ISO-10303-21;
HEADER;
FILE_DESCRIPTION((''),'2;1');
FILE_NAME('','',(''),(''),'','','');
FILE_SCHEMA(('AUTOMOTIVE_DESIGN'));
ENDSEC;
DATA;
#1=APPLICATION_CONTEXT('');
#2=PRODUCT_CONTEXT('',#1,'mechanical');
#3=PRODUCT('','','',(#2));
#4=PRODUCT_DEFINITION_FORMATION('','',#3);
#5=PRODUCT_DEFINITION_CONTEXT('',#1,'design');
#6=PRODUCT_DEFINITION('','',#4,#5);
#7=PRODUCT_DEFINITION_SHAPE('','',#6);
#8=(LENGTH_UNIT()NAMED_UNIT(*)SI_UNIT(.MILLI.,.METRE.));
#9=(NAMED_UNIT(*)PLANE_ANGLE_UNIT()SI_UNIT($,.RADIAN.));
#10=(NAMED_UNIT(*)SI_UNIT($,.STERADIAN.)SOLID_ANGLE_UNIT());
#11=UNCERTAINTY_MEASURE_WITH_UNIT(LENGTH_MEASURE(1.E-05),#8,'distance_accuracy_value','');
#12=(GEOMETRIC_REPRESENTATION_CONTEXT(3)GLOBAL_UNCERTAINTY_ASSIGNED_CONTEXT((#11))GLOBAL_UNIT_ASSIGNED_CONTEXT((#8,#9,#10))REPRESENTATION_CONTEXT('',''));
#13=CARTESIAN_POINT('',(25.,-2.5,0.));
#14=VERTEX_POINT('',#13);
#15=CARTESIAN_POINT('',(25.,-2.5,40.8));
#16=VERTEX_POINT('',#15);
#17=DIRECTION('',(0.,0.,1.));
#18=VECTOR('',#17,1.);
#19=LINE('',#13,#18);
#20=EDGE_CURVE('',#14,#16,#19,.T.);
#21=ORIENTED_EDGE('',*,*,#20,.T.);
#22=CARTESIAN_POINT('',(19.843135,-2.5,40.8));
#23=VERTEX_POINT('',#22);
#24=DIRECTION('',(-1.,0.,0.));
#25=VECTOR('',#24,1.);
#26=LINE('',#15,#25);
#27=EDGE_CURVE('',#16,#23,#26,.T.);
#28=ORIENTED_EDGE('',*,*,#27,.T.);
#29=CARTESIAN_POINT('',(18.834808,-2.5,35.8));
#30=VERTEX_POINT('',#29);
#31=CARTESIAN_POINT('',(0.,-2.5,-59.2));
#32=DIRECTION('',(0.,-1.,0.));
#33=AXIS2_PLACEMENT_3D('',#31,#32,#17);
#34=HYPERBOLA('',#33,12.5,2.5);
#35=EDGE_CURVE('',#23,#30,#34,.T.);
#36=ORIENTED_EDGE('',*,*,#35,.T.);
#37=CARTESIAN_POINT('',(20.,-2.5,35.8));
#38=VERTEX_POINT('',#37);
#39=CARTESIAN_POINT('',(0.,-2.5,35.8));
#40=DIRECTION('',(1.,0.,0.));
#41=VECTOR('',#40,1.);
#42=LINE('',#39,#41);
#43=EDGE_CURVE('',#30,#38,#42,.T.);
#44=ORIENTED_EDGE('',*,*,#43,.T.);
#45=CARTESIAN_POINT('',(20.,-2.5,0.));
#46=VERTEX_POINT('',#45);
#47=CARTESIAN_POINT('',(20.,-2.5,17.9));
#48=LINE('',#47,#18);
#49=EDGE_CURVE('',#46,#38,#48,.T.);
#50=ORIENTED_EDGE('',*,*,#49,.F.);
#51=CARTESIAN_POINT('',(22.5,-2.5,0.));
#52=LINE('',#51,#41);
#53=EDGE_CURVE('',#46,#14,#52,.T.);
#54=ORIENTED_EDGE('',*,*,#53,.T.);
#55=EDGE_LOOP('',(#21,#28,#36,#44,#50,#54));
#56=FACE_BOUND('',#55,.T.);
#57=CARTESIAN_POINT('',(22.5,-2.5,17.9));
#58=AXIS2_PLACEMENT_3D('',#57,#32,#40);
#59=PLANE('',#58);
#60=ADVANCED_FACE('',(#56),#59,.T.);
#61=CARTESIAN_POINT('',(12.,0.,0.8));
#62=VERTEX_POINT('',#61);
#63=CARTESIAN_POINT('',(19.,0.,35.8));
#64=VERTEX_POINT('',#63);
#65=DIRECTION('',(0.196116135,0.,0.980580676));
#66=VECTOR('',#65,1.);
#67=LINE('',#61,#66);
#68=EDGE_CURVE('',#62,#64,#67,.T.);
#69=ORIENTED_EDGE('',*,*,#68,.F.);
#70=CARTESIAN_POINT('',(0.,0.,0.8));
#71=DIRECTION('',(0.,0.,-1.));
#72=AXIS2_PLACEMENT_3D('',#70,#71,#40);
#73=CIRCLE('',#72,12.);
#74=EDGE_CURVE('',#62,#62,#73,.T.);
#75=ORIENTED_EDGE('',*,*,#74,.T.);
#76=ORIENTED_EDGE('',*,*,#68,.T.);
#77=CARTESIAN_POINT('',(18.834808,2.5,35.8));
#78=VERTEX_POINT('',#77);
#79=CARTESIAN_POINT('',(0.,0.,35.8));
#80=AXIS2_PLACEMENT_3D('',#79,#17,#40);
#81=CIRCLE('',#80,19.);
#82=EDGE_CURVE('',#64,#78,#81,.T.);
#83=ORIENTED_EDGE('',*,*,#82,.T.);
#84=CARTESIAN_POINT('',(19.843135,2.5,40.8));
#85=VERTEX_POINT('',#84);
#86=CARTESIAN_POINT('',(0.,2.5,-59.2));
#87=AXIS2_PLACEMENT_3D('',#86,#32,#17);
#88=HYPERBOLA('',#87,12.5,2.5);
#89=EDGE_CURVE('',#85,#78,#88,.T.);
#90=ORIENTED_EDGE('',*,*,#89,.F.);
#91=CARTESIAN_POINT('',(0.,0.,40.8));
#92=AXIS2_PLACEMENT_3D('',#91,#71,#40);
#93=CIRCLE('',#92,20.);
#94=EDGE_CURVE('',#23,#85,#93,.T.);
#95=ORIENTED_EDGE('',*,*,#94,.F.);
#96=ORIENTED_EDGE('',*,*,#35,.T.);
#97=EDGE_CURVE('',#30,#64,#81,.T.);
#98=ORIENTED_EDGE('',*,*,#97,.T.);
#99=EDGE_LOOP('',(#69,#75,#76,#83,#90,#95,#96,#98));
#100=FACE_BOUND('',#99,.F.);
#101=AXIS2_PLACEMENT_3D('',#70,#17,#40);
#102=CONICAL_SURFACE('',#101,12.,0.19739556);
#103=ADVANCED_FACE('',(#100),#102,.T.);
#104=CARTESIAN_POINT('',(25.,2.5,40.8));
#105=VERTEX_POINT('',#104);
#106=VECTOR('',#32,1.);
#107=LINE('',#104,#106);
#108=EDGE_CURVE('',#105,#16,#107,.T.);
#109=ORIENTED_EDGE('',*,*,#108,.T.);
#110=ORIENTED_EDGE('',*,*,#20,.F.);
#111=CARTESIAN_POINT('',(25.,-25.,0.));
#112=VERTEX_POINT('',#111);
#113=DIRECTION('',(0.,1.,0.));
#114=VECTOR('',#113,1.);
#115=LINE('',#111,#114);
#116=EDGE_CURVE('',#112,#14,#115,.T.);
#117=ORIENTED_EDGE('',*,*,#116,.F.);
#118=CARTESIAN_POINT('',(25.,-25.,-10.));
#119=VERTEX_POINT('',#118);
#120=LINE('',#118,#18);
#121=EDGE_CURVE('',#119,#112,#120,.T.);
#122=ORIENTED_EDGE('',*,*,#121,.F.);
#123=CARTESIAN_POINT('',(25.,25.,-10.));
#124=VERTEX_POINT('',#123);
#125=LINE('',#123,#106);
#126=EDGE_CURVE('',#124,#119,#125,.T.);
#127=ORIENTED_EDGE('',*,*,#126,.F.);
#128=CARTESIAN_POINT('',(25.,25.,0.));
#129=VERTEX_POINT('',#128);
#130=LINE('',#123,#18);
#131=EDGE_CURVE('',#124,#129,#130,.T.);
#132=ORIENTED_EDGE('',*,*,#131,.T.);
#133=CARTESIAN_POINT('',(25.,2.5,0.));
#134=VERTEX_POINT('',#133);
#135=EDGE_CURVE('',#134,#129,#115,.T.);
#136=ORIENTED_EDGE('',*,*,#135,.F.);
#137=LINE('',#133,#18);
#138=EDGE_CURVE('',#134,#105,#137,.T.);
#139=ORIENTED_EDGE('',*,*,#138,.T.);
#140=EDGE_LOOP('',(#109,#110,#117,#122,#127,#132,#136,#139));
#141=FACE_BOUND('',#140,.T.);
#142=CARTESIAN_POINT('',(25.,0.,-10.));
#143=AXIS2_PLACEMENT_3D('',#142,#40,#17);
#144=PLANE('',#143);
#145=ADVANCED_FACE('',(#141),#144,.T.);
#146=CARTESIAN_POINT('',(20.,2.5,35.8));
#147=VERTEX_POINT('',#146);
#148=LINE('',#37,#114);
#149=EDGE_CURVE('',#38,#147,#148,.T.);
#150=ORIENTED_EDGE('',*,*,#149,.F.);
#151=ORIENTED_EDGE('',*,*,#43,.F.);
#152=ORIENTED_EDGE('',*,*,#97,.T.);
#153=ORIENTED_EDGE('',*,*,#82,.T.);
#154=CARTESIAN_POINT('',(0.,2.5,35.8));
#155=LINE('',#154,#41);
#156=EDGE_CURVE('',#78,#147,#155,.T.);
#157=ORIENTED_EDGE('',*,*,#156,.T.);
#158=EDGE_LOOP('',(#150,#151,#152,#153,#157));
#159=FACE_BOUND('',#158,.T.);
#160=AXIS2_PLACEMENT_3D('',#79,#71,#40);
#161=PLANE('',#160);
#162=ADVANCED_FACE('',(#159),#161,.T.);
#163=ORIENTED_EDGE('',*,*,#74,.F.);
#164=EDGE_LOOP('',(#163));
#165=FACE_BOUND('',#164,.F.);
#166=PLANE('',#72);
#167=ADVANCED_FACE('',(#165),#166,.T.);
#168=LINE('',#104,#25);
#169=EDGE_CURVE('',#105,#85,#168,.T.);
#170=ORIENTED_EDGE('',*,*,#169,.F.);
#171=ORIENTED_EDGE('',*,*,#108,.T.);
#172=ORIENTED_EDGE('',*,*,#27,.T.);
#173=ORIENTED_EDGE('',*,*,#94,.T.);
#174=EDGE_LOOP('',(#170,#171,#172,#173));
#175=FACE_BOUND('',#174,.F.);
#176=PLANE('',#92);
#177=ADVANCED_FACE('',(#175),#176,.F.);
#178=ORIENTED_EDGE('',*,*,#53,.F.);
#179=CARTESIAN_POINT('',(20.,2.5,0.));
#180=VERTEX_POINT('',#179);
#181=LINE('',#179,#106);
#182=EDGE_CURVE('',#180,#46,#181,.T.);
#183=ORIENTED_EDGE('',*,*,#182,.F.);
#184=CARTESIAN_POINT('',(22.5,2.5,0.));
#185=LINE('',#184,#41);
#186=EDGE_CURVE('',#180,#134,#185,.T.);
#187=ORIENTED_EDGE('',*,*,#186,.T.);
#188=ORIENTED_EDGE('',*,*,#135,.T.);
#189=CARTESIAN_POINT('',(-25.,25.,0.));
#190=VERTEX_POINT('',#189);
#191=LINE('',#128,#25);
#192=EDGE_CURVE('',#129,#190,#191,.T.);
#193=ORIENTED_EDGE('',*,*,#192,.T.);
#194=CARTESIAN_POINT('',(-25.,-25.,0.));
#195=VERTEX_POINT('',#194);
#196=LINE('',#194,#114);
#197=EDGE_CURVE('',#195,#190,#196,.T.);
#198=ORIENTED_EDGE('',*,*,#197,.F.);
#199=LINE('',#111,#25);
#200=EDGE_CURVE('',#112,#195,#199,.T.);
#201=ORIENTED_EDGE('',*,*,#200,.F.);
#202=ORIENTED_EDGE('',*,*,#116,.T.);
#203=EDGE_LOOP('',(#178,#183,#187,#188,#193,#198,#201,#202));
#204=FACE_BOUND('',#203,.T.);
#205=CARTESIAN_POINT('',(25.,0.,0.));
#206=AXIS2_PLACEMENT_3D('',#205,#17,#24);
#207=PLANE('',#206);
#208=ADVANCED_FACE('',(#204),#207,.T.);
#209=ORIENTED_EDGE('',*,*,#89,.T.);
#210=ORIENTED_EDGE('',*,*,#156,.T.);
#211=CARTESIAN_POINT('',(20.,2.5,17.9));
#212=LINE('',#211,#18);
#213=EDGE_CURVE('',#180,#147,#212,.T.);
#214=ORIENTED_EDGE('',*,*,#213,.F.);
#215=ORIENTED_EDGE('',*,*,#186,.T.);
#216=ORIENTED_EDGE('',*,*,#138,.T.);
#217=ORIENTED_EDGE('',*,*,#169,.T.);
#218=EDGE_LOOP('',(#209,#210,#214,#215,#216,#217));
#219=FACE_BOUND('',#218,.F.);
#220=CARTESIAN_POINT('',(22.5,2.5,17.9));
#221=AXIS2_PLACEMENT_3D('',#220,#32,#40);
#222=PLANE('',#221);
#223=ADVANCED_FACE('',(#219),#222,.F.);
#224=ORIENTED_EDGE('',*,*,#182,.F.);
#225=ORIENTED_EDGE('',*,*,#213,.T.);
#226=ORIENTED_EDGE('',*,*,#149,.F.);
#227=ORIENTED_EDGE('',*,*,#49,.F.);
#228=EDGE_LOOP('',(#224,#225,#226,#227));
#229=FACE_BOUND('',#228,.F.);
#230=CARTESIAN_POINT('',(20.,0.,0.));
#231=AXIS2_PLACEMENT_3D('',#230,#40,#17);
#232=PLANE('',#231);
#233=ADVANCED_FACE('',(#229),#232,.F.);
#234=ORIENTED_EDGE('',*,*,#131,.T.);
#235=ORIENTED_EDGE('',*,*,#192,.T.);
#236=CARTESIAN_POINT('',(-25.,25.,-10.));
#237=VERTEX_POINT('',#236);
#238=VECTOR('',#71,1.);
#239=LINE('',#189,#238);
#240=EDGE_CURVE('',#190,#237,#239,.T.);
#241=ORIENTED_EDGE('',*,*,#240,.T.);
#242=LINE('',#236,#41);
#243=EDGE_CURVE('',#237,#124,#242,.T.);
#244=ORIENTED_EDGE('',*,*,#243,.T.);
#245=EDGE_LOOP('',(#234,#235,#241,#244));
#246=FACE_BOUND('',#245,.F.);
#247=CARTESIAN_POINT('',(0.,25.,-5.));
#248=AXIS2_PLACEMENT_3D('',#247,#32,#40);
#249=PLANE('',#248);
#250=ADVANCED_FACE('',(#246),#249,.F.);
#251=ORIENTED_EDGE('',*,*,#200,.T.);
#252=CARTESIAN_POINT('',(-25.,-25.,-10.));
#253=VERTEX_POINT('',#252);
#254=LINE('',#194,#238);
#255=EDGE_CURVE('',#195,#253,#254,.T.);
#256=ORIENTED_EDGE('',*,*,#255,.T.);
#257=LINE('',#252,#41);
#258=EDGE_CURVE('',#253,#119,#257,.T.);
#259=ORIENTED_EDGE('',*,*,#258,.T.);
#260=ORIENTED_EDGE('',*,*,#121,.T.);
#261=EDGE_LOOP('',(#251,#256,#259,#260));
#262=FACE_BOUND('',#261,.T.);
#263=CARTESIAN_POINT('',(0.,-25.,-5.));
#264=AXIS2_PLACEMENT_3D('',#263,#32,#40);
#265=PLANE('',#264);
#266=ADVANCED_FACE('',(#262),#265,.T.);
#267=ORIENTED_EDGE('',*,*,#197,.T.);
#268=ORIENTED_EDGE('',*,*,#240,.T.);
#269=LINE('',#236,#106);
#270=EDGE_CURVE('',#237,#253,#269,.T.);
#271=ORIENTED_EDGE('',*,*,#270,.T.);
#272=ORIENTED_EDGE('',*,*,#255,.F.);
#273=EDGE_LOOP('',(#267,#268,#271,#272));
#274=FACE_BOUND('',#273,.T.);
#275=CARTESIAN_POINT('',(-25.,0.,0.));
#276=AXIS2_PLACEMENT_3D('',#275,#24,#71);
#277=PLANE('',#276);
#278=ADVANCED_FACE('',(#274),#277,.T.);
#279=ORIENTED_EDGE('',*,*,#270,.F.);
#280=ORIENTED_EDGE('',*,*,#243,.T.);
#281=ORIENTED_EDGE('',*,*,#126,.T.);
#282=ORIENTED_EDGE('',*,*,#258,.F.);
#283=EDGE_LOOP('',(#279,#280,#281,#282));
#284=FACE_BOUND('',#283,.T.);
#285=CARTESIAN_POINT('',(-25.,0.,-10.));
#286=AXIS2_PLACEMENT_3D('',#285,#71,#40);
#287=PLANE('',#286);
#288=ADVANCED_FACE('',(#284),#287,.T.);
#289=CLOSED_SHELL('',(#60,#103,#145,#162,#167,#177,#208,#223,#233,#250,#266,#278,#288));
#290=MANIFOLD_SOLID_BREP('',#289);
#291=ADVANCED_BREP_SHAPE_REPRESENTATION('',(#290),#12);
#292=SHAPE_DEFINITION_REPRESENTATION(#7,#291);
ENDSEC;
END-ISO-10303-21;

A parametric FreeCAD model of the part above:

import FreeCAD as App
import Part
import Sketcher
from FreeCAD import Vector
Q = App.Units.Quantity

doc = App.newDocument("Part")
body = doc.addObject("PartDesign::Body", "Body")

# Sketch on XZ plane
sketch1 = doc.addObject("Sketcher::SketchObject", "Sketch")
body.addObject(sketch1)
sketch1.AttachmentSupport = (doc.XZ_Plane, [""])
sketch1.MapMode = "FlatFace"
sketch1.addGeometry([
    Part.LineSegment(Vector(-25, 0, 0), Vector(-25, -10, 0)),
    Part.LineSegment(Vector(-25, -10, 0), Vector(25, -10, 0)),
    Part.LineSegment(Vector(25, -10, 0), Vector(25, 0, 0)),
    Part.LineSegment(Vector(25, 0, 0), Vector(-25, 0, 0)),
], False)
sketch1.addConstraint([
    Sketcher.Constraint("Coincident", 0, 2, 1, 1),
    Sketcher.Constraint("Coincident", 1, 2, 2, 1),
    Sketcher.Constraint("Coincident", 2, 2, 3, 1),
    Sketcher.Constraint("Coincident", 3, 2, 0, 1),
    Sketcher.Constraint("Vertical", 0),
    Sketcher.Constraint("Horizontal", 1),
    Sketcher.Constraint("Vertical", 2),
    Sketcher.Constraint("Horizontal", 3),
    Sketcher.Constraint("Symmetric", 2, 2, 3, 2, -1, 1),
    Sketcher.Constraint("DistanceX", 1, 1, 1, 2, Q("50 mm")),
    Sketcher.Constraint("DistanceY", 0, 2, 0, 1, Q("10 mm")),
])
pad1 = doc.addObject("PartDesign::Pad", "Pad")
body.addObject(pad1)
pad1.Profile = sketch1
pad1.Length = 50
pad1.Midplane = True

# Sketch on XZ plane
sketch2 = doc.addObject("Sketcher::SketchObject", "Sketch001")
body.addObject(sketch2)
sketch2.AttachmentSupport = (doc.XZ_Plane, [""])
sketch2.MapMode = "FlatFace"
sketch2.addGeometry([
    Part.LineSegment(Vector(20, 36, 0), Vector(20, 0, 0)),  # 0
    Part.LineSegment(Vector(20, 0, 0), Vector(25, 0, 0)),  # 1
    Part.LineSegment(Vector(25, 0, 0), Vector(25, 41, 0)),  # 2
    Part.LineSegment(Vector(25, 41, 0), Vector(0, 41, 0)),  # 3
    Part.LineSegment(Vector(0, 41, 0), Vector(0, 36, 0)),  # 4
    Part.LineSegment(Vector(0, 36, 0), Vector(20, 36, 0)),  # 5
], False)
sketch2.addConstraint([
    Sketcher.Constraint("Coincident", 0, 2, 1, 1),
    Sketcher.Constraint("Coincident", 1, 2, 2, 1),
    Sketcher.Constraint("Coincident", 2, 2, 3, 1),
    Sketcher.Constraint("Coincident", 3, 2, 4, 1),
    Sketcher.Constraint("Coincident", 4, 2, 5, 1),
    Sketcher.Constraint("Coincident", 5, 2, 0, 1),
    Sketcher.Constraint("Vertical", 0),
    Sketcher.Constraint("Horizontal", 1),
    Sketcher.Constraint("Vertical", 2),
    Sketcher.Constraint("Horizontal", 3),
    Sketcher.Constraint("Vertical", 4),
    Sketcher.Constraint("Horizontal", 5),
    Sketcher.Constraint("PointOnObject", 0, 2, -1),
    Sketcher.Constraint("PointOnObject", 3, 2, -2),
    Sketcher.Constraint("Equal", 1, 4),
    Sketcher.Constraint("DistanceX", 1, 1, 1, 2, Q("5 mm")),
    Sketcher.Constraint("DistanceX", 3, 2, 3, 1, Q("25 mm")),
    Sketcher.Constraint("DistanceY", 0, 2, 0, 1, Q("35.8 mm")),
])
pad2 = doc.addObject("PartDesign::Pad", "Pad001")
body.addObject(pad2)
pad2.Profile = sketch2
pad2.Length = 5
pad2.Midplane = True

# Sketch on XZ plane
sketch3 = doc.addObject("Sketcher::SketchObject", "Sketch002")
body.addObject(sketch3)
sketch3.AttachmentSupport = (doc.XZ_Plane, [""])
sketch3.MapMode = "FlatFace"
sketch3.addGeometry([
    Part.LineSegment(Vector(12, 1, 0), Vector(20, 41, 0)),
    Part.LineSegment(Vector(20, 41, 0), Vector(0, 41, 0)),
    Part.LineSegment(Vector(0, 41, 0), Vector(0, 1, 0)),
    Part.LineSegment(Vector(0, 1, 0), Vector(12, 1, 0)),
], False)
sketch3.addConstraint([
    Sketcher.Constraint("Coincident", 0, 2, 1, 1),
    Sketcher.Constraint("Coincident", 1, 2, 2, 1),
    Sketcher.Constraint("Coincident", 2, 2, 3, 1),
    Sketcher.Constraint("Coincident", 3, 2, 0, 1),
    Sketcher.Constraint("Horizontal", 1),
    Sketcher.Constraint("Vertical", 2),
    Sketcher.Constraint("Horizontal", 3),
    Sketcher.Constraint("PointOnObject", 1, 2, -2),
    Sketcher.Constraint("DistanceX", 1, 2, 1, 1, Q("20 mm")),
    Sketcher.Constraint("DistanceX", 3, 1, 3, 2, Q("12 mm")),
    Sketcher.Constraint("DistanceY", 2, 2, 2, 1, Q("40 mm")),
    Sketcher.Constraint("DistanceY", -1, 1, 0, 2, Q("40.8 mm")),
])
revolution = doc.addObject("PartDesign::Revolution", "Revolution")
body.addObject(revolution)
revolution.Profile = sketch3
revolution.ReferenceAxis = (sketch3, ["V_Axis"])
revolution.Angle = 360

doc.recompute()
